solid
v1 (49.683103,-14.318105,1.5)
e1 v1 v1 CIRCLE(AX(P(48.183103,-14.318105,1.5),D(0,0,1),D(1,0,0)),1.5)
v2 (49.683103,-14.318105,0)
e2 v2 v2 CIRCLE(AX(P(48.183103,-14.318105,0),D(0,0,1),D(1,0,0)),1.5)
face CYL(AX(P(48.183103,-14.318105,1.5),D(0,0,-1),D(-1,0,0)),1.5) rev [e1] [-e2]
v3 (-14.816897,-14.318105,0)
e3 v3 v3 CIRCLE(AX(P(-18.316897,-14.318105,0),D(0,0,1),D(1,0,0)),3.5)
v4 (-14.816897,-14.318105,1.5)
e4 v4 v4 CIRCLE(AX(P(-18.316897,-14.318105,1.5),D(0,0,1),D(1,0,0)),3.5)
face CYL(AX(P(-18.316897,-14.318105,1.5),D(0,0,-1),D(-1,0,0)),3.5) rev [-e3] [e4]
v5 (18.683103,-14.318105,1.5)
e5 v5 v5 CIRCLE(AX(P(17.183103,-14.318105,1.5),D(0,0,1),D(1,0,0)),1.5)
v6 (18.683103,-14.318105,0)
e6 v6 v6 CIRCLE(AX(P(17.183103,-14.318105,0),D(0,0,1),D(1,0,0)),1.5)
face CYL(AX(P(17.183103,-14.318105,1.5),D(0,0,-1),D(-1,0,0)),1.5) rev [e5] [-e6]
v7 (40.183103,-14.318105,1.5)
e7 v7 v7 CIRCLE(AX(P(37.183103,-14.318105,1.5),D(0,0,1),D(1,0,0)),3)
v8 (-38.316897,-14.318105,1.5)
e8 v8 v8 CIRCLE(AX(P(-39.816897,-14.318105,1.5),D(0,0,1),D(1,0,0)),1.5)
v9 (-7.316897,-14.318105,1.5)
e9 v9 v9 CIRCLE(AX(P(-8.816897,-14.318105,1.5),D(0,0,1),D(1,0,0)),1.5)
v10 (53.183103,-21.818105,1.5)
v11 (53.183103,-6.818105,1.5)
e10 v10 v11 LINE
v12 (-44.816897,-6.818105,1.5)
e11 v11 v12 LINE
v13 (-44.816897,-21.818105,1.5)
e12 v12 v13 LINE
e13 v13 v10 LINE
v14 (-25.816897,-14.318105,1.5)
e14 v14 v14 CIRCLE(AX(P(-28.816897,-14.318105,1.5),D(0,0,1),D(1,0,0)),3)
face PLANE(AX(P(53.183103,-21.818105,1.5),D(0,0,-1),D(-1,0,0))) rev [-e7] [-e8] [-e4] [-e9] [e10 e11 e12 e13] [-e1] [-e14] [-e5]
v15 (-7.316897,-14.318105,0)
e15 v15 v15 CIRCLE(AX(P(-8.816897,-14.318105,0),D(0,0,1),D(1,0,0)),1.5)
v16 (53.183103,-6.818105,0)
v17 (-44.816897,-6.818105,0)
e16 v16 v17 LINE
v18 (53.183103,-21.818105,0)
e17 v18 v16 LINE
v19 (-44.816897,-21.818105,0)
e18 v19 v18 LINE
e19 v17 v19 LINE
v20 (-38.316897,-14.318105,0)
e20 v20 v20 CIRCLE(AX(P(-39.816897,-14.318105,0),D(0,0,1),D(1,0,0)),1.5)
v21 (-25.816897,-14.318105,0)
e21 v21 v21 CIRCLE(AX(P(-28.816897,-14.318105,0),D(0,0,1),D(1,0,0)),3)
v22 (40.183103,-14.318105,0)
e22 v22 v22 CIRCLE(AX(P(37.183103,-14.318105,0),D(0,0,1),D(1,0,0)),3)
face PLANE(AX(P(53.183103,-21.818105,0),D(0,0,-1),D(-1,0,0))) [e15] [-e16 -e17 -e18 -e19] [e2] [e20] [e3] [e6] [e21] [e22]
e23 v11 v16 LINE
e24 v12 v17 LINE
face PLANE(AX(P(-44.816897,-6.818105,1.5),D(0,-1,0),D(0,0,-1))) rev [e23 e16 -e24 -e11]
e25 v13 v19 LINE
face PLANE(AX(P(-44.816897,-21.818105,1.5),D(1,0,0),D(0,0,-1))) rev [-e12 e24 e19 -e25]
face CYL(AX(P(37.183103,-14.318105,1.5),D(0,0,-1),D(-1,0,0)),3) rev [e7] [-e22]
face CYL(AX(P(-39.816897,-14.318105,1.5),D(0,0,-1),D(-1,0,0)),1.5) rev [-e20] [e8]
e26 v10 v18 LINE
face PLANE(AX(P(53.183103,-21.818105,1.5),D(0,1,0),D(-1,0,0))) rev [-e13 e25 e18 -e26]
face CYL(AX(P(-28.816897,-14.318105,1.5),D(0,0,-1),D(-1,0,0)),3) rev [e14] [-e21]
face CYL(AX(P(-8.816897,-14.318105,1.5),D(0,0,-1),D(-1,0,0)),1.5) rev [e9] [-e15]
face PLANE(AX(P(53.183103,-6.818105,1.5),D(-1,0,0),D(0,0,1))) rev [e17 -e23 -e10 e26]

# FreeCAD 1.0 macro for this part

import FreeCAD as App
import Part
import Sketcher

doc = App.newDocument("Part")
body = doc.addObject("PartDesign::Body", "Body")

sketch1 = body.newObject("Sketcher::SketchObject", "Sketch")
sketch1.AttachmentSupport = (doc.getObject("XY_Plane"), [""])
sketch1.MapMode = "FlatFace"
sketch1.addGeometry([
    Part.LineSegment(App.Vector(-44.8, -6.8, 0), App.Vector(-44.8, -21.8, 0)),
    Part.LineSegment(App.Vector(-44.8, -21.8, 0), App.Vector(53.2, -21.8, 0)),
    Part.LineSegment(App.Vector(53.2, -21.8, 0), App.Vector(53.2, -6.8, 0)),
    Part.LineSegment(App.Vector(53.2, -6.8, 0), App.Vector(-44.8, -6.8, 0)),
    Part.Circle(App.Vector(-39.8, -14.3, 0), App.Vector(0, 0, 1), 1.5),
    Part.Circle(App.Vector(-28.8, -14.3, 0), App.Vector(0, 0, 1), 3),
    Part.Circle(App.Vector(-18.3, -14.3, 0), App.Vector(0, 0, 1), 3.5),
    Part.Circle(App.Vector(-8.8, -14.3, 0), App.Vector(0, 0, 1), 1.5),
    Part.Circle(App.Vector(17.2, -14.3, 0), App.Vector(0, 0, 1), 1.5),
    Part.Circle(App.Vector(37.2, -14.3, 0), App.Vector(0, 0, 1), 3),
    Part.Circle(App.Vector(48.2, -14.3, 0), App.Vector(0, 0, 1), 1.5),
], False)
sketch1.addConstraint([
    Sketcher.Constraint("Coincident", 0, 2, 1, 1),
    Sketcher.Constraint("Coincident", 1, 2, 2, 1),
    Sketcher.Constraint("Coincident", 2, 2, 3, 1),
    Sketcher.Constraint("Coincident", 3, 2, 0, 1),
    Sketcher.Constraint("Vertical", 0),
    Sketcher.Constraint("Horizontal", 1),
    Sketcher.Constraint("Vertical", 2),
    Sketcher.Constraint("Horizontal", 3),
    Sketcher.Constraint("Equal", 4, 7),
    Sketcher.Constraint("Equal", 7, 8),
    Sketcher.Constraint("Equal", 5, 9),
    Sketcher.Constraint("Equal", 8, 10),
    Sketcher.Constraint("Horizontal", 4, 3, 5, 3),
    Sketcher.Constraint("Horizontal", 5, 3, 6, 3),
    Sketcher.Constraint("Horizontal", 6, 3, 7, 3),
    Sketcher.Constraint("Horizontal", 7, 3, 8, 3),
    Sketcher.Constraint("Horizontal", 8, 3, 9, 3),
    Sketcher.Constraint("Horizontal", 9, 3, 10, 3),
    Sketcher.Constraint("Diameter", 4, 3.0),
    Sketcher.Constraint("Diameter", 5, 6.0),
    Sketcher.Constraint("Diameter", 6, 7.0),
    Sketcher.Constraint("DistanceX", 1, 1, 1, 2, 98.0),
    Sketcher.Constraint("DistanceY", 0, 2, 0, 1, 15.0),
    Sketcher.Constraint("DistanceX", 4, 3, 5, 3, 11.0),
    Sketcher.Constraint("DistanceX", 5, 3, 7, 3, 20.0),
    Sketcher.Constraint("DistanceX", 7, 3, 8, 3, 26.0),
    Sketcher.Constraint("DistanceX", 8, 3, 9, 3, 20.0),
    Sketcher.Constraint("DistanceX", 9, 3, 10, 3, 11.0),
    Sketcher.Constraint("DistanceX", 0, 2, 4, 3, 5.0),
    Sketcher.Constraint("DistanceX", 5, 3, 6, 3, 10.5),
    Sketcher.Constraint("DistanceY", 0, 2, 4, 3, 7.5),
    Sketcher.Constraint("DistanceX", 4, 3, -1, 1, 39.816897),
    Sketcher.Constraint("DistanceY", 4, 3, -1, 1, 14.318105),
])
pad1 = body.newObject("PartDesign::Pad", "Pad")
pad1.Profile = sketch1
pad1.Length = 1.5

doc.recompute()
